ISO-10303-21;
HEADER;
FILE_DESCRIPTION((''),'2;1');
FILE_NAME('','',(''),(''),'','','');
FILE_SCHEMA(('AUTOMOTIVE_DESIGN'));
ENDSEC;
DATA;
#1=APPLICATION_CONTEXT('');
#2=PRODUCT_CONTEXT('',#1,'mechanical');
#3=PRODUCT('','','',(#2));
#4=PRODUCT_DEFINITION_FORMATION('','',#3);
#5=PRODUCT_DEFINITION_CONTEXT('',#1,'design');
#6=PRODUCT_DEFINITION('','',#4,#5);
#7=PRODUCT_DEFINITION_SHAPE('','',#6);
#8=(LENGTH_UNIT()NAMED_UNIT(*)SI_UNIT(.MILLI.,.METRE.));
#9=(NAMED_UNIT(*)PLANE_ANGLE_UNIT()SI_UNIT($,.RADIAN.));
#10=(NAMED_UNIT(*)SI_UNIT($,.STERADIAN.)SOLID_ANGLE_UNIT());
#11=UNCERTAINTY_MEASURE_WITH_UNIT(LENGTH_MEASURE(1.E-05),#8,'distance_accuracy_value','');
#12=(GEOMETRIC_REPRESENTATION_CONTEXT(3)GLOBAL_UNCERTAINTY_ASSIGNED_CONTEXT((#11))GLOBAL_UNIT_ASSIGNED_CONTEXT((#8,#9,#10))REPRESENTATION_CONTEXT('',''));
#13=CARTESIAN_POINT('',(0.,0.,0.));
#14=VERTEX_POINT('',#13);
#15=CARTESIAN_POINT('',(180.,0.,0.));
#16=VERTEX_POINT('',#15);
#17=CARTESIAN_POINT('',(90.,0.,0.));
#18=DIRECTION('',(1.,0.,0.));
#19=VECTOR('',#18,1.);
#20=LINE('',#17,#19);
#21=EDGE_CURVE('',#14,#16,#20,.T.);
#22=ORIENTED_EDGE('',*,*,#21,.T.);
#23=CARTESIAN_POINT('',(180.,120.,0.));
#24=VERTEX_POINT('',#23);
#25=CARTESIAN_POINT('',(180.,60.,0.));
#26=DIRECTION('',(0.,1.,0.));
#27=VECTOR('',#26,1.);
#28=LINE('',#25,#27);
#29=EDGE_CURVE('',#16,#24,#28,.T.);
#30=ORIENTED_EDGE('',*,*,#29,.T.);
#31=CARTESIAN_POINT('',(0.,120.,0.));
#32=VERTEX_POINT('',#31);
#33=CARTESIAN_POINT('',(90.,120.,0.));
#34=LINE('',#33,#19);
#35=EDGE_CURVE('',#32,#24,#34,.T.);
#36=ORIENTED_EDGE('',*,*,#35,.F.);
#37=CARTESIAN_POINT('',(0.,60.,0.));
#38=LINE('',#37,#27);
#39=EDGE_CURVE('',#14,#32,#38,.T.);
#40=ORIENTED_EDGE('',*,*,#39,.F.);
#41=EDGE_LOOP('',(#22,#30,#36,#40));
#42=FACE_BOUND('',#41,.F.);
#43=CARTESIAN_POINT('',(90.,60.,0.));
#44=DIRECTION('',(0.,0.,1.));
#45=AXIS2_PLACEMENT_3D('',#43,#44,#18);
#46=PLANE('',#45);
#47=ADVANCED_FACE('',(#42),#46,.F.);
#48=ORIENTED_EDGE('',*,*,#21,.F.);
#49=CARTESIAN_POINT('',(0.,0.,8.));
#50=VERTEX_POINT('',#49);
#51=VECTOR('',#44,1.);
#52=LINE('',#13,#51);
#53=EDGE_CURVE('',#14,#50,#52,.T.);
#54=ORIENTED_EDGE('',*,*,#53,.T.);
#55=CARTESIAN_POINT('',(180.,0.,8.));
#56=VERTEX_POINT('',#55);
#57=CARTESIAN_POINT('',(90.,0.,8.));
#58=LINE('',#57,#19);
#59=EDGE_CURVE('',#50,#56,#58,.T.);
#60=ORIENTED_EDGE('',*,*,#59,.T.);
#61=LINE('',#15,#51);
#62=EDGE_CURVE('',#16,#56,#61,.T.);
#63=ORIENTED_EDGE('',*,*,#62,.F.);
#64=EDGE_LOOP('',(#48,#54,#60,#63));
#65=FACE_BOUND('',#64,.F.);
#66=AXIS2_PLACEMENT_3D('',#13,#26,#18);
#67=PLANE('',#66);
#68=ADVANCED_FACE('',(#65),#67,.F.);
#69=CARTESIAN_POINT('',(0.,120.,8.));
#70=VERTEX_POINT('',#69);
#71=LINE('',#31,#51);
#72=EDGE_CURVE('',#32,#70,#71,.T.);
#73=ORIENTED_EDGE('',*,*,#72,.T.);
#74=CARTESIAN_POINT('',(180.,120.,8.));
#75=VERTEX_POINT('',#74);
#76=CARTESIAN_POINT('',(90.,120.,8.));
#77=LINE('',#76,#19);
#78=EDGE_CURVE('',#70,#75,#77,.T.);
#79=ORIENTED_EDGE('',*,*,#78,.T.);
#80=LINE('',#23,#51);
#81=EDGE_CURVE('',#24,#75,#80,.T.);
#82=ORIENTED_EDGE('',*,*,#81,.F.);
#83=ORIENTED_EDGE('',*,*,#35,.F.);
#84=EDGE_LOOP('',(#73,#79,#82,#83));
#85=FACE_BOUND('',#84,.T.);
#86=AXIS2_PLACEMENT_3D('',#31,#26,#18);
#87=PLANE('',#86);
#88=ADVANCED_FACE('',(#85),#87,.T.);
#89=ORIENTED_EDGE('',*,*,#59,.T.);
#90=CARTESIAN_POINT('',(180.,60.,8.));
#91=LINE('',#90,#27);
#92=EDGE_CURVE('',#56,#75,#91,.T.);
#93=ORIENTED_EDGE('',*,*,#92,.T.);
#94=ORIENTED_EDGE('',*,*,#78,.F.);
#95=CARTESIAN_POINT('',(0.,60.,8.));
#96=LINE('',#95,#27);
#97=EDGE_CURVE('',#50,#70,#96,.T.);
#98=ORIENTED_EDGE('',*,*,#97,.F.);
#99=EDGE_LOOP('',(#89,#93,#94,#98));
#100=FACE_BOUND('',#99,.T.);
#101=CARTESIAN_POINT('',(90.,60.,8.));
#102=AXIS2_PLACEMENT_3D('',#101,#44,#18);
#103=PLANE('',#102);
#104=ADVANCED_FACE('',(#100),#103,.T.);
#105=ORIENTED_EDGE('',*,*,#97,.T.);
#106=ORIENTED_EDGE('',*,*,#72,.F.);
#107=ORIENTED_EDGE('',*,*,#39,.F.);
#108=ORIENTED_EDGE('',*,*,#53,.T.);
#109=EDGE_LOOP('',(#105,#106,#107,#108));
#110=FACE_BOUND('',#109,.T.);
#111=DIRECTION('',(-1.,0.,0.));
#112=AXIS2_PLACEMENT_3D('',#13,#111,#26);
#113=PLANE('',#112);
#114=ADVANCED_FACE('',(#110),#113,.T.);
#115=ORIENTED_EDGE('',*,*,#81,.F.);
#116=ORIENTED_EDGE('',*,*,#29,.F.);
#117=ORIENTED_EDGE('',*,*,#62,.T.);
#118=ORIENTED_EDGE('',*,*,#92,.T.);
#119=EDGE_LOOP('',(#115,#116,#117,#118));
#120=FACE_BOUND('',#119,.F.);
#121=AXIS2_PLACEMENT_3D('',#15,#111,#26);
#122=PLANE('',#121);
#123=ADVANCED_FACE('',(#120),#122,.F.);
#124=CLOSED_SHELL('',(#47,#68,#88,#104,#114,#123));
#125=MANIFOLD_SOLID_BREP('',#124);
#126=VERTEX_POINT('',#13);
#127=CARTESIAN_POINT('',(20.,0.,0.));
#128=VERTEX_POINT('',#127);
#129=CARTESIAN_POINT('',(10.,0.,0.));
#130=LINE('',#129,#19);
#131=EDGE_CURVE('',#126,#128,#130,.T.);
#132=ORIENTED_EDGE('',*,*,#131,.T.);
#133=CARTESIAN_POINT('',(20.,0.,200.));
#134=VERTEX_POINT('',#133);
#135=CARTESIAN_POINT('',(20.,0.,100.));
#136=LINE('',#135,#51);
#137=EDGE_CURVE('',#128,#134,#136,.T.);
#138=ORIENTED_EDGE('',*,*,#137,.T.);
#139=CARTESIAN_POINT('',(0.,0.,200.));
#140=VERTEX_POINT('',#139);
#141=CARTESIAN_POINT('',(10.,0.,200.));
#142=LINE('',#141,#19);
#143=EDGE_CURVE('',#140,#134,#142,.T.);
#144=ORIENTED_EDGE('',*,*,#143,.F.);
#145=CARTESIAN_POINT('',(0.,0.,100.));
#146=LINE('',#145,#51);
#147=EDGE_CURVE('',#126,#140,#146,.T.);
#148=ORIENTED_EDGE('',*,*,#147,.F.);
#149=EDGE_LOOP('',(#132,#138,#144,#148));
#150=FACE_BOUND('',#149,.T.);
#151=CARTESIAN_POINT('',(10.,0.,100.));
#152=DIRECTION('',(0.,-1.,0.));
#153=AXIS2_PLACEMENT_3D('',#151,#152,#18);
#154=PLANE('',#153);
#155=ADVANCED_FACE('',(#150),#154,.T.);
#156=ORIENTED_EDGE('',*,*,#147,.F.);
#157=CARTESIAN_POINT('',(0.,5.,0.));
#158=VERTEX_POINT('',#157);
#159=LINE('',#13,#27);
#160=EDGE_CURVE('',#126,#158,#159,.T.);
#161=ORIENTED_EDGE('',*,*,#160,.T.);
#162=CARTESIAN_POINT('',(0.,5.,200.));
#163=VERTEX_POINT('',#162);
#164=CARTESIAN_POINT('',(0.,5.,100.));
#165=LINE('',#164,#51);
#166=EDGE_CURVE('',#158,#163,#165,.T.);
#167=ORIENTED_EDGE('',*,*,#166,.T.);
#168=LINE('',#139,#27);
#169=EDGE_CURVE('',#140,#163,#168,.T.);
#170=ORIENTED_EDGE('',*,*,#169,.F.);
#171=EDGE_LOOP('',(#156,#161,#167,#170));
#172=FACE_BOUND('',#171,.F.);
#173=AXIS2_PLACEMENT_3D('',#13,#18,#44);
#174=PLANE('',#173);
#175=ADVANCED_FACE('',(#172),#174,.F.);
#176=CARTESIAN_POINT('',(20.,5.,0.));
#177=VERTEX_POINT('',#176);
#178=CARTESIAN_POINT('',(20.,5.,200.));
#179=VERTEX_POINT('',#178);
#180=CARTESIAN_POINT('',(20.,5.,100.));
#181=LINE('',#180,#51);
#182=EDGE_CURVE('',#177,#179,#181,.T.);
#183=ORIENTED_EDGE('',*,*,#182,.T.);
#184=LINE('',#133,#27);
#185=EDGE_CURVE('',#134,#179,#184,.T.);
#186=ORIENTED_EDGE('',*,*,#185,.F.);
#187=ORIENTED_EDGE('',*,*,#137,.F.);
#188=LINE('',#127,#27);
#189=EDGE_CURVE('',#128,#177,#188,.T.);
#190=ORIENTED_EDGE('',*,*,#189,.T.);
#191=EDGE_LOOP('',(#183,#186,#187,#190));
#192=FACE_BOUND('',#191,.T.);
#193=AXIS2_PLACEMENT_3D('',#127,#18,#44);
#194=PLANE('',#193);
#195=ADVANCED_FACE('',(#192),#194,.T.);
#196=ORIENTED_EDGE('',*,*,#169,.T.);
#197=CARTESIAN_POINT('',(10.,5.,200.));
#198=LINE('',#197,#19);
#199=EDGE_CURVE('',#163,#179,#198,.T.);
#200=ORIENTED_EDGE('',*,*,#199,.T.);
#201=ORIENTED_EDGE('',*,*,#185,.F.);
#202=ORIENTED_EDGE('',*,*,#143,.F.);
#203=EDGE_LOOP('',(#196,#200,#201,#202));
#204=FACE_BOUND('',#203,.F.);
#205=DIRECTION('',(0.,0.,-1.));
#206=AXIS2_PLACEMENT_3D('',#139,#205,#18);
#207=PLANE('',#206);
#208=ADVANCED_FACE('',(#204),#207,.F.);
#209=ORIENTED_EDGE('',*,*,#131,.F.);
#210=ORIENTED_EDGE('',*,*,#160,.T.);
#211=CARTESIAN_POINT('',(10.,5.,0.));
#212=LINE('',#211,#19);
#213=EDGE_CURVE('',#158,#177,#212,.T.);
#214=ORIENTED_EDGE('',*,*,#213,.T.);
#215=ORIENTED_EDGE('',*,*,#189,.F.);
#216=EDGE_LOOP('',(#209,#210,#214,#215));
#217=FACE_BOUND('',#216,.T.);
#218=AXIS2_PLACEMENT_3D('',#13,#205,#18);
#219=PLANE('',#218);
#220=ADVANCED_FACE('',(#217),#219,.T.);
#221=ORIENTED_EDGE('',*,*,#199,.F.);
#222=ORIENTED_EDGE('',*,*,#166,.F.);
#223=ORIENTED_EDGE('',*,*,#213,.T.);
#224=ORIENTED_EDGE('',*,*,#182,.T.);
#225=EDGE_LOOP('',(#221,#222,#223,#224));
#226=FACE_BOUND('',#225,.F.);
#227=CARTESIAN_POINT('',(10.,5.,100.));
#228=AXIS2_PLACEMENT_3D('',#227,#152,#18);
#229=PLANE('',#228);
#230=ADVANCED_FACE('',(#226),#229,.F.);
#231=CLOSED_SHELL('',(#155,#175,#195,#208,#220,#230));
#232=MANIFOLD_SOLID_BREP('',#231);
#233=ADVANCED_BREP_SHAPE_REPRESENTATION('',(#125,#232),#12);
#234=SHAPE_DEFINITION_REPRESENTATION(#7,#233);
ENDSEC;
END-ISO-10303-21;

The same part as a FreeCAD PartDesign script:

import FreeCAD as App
import Part
import Sketcher
from FreeCAD import Vector
Q = App.Units.Quantity


def add_polygon(sketch, points):
    """Adds a closed chain of lines whose ends are joined by coincident constraints."""
    first, n = sketch.GeometryCount, len(points)
    for a, b in zip(points, points[1:] + points[:1]):
        sketch.addGeometry(Part.LineSegment(App.Vector(*a, 0), App.Vector(*b, 0)), False)
    for i in range(n):
        sketch.addConstraint(Sketcher.Constraint("Coincident", first + i, 2, first + (i + 1) % n, 1))

doc = App.newDocument("Part")
body = doc.addObject("PartDesign::Body", "Body")

# Sketch on XY plane
sketch1 = doc.addObject("Sketcher::SketchObject", "Sketch")
body.addObject(sketch1)
sketch1.AttachmentSupport = (doc.XY_Plane, [""])
sketch1.MapMode = "FlatFace"
add_polygon(sketch1, [(0, 120), (0, 0), (180, 0), (180, 120)])  # lines 0-3
sketch1.addConstraint([
    Sketcher.Constraint("Vertical", 0),
    Sketcher.Constraint("Horizontal", 1),
    Sketcher.Constraint("Vertical", 2),
    Sketcher.Constraint("Horizontal", 3),
    Sketcher.Constraint("Coincident", 0, 2, -1, 1),
    Sketcher.Constraint("DistanceX", 1, 1, 1, 2, Q("180 mm")),
    Sketcher.Constraint("DistanceY", 0, 2, 0, 1, Q("120 mm")),
])
pad1 = doc.addObject("PartDesign::Pad", "Pad")
body.addObject(pad1)
pad1.Profile = sketch1
pad1.Length = 8
body2 = doc.addObject("PartDesign::Body", "Body001")

# Sketch on XZ plane
sketch2 = doc.addObject("Sketcher::SketchObject", "Sketch001")
body2.addObject(sketch2)
sketch2.AttachmentSupport = (doc.getObject("XZ_Plane001"), [""])
sketch2.MapMode = "FlatFace"
add_polygon(sketch2, [(0, 200), (0, 0), (20, 0), (20, 200)])  # lines 0-3
sketch2.addConstraint([
    Sketcher.Constraint("Vertical", 0),
    Sketcher.Constraint("Horizontal", 1),
    Sketcher.Constraint("Vertical", 2),
    Sketcher.Constraint("Horizontal", 3),
    Sketcher.Constraint("Coincident", 0, 2, -1, 1),
    Sketcher.Constraint("DistanceX", 1, 1, 1, 2, Q("20 mm")),
    Sketcher.Constraint("DistanceY", 0, 2, 0, 1, Q("200 mm")),
])
pad2 = doc.addObject("PartDesign::Pad", "Pad001")
body2.addObject(pad2)
pad2.Profile = sketch2
pad2.Length = 5
pad2.Reversed = True

doc.recompute()
